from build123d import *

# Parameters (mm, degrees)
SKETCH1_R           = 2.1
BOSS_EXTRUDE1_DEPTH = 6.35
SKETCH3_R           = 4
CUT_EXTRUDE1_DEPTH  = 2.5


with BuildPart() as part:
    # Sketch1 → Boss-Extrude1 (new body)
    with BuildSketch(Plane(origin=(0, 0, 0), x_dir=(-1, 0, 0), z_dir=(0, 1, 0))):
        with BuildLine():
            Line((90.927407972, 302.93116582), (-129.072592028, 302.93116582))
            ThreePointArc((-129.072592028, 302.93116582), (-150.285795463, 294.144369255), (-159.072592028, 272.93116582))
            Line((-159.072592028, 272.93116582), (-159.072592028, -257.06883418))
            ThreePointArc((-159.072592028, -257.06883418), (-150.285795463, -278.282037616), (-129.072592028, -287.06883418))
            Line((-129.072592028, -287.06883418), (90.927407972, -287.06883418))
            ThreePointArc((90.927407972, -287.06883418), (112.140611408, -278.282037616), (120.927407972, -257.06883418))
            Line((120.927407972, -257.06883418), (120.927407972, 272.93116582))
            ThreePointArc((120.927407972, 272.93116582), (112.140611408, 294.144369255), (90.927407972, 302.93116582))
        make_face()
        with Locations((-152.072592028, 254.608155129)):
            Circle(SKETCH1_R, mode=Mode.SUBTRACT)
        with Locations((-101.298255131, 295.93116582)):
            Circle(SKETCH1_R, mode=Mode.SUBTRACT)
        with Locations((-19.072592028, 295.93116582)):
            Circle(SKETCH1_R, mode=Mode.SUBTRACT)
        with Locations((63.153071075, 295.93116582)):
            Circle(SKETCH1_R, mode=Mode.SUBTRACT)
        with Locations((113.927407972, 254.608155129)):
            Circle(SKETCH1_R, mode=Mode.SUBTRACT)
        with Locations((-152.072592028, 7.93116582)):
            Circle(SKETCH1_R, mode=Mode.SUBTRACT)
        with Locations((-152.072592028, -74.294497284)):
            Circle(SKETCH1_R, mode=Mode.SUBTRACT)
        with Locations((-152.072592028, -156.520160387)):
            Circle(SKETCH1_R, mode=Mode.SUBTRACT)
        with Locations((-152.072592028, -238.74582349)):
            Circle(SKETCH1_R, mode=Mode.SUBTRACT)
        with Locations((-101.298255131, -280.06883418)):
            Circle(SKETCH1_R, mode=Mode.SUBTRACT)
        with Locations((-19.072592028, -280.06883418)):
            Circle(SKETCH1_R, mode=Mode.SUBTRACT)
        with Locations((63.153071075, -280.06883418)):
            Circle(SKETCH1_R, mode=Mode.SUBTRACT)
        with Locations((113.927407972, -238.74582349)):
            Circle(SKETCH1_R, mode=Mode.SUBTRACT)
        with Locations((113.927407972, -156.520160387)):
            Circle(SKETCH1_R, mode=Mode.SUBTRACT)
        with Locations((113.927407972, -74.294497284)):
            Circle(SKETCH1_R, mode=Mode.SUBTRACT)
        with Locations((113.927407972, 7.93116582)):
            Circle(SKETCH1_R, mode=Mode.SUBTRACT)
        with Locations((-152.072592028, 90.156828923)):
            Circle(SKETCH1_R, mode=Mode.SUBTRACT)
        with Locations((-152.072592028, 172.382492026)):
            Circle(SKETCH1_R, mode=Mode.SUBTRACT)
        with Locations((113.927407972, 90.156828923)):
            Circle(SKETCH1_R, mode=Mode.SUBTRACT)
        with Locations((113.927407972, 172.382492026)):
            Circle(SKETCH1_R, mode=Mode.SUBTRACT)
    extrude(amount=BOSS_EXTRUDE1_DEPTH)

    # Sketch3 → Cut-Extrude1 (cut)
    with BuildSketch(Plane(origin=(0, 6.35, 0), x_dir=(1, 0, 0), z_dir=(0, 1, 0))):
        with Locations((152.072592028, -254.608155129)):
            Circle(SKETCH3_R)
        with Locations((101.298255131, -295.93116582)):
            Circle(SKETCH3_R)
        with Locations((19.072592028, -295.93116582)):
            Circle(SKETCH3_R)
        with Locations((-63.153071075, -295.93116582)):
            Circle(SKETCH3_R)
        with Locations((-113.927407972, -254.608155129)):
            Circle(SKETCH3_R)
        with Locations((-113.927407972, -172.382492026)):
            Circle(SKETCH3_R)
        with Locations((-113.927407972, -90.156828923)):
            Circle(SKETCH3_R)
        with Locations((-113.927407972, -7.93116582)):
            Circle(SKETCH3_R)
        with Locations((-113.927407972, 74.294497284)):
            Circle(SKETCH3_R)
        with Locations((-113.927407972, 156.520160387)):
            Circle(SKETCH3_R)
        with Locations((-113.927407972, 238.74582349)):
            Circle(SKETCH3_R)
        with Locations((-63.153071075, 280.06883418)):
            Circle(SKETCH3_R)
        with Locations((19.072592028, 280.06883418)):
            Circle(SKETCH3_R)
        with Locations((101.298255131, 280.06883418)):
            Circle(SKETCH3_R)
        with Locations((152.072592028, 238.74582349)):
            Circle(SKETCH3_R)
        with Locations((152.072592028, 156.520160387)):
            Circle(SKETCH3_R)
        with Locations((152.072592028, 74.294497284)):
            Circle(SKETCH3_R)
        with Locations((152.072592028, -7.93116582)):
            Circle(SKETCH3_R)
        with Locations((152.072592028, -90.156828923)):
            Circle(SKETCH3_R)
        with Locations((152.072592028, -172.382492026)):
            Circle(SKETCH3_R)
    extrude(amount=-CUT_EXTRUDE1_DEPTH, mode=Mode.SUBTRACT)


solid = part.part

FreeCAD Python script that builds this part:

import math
import FreeCAD as App
import Part
import Sketcher
Q = App.Units.Quantity

doc = App.newDocument("Part")
body = doc.addObject("PartDesign::Body", "Body")

# Sketch on XZ plane
sketch1 = body.newObject("Sketcher::SketchObject", "Sketch")
sketch1.AttachmentSupport = (doc.getObject("XZ_Plane"), [""])
sketch1.MapMode = "FlatFace"
sketch1.addGeometry([
    Part.LineSegment(App.Vector(-90.927408, 302.931166, 0), App.Vector(129.072592, 302.931166, 0)),  # 0
    Part.ArcOfCircle(Part.Circle(App.Vector(129.072592, 272.931166, 0), App.Vector(0, 0, 1), 30), math.radians(0), math.radians(90)),  # 1
    Part.LineSegment(App.Vector(159.072592, 272.931166, 0), App.Vector(159.072592, -257.068834, 0)),  # 2
    Part.ArcOfCircle(Part.Circle(App.Vector(129.072592, -257.068834, 0), App.Vector(0, 0, 1), 30), math.radians(-90), math.radians(0)),  # 3
    Part.LineSegment(App.Vector(129.072592, -287.068834, 0), App.Vector(-90.927408, -287.068834, 0)),  # 4
    Part.ArcOfCircle(Part.Circle(App.Vector(-90.927408, -257.068834, 0), App.Vector(0, 0, 1), 30), math.radians(180), math.radians(270)),  # 5
    Part.LineSegment(App.Vector(-120.927408, -257.068834, 0), App.Vector(-120.927408, 272.931166, 0)),  # 6
    Part.ArcOfCircle(Part.Circle(App.Vector(-90.927408, 272.931166, 0), App.Vector(0, 0, 1), 30), math.radians(90), math.radians(180)),  # 7
    Part.Circle(App.Vector(152.072592, -238.745823, 0), App.Vector(0, 0, 1), 2.1),  # 8
    Part.Circle(App.Vector(101.298255, -280.068834, 0), App.Vector(0, 0, 1), 2.1),  # 9
    Part.Circle(App.Vector(152.072592, -156.52016, 0), App.Vector(0, 0, 1), 2.1),  # 10
    Part.Circle(App.Vector(152.072592, -74.294497, 0), App.Vector(0, 0, 1), 2.1),  # 11
    Part.Circle(App.Vector(19.072592, -280.068834, 0), App.Vector(0, 0, 1), 2.1),  # 12
    Part.Circle(App.Vector(-63.153071, -280.068834, 0), App.Vector(0, 0, 1), 2.1),  # 13
    Part.Circle(App.Vector(-113.927408, -238.745823, 0), App.Vector(0, 0, 1), 2.1),  # 14
    Part.Circle(App.Vector(-113.927408, -156.52016, 0), App.Vector(0, 0, 1), 2.1),  # 15
    Part.Circle(App.Vector(-113.927408, -74.294497, 0), App.Vector(0, 0, 1), 2.1),  # 16
    Part.Circle(App.Vector(152.072592, 7.931166, 0), App.Vector(0, 0, 1), 2.1),  # 17
    Part.Circle(App.Vector(152.072592, 90.156829, 0), App.Vector(0, 0, 1), 2.1),  # 18
    Part.Circle(App.Vector(152.072592, 172.382492, 0), App.Vector(0, 0, 1), 2.1),  # 19
    Part.Circle(App.Vector(152.072592, 254.608155, 0), App.Vector(0, 0, 1), 2.1),  # 20
    Part.Circle(App.Vector(101.298255, 295.931166, 0), App.Vector(0, 0, 1), 2.1),  # 21
    Part.Circle(App.Vector(-113.927408, 7.931166, 0), App.Vector(0, 0, 1), 2.1),  # 22
    Part.Circle(App.Vector(-113.927408, 90.156829, 0), App.Vector(0, 0, 1), 2.1),  # 23
    Part.Circle(App.Vector(19.072592, 295.931166, 0), App.Vector(0, 0, 1), 2.1),  # 24
    Part.Circle(App.Vector(-113.927408, 172.382492, 0), App.Vector(0, 0, 1), 2.1),  # 25
    Part.Circle(App.Vector(-63.153071, 295.931166, 0), App.Vector(0, 0, 1), 2.1),  # 26
    Part.Circle(App.Vector(-113.927408, 254.608155, 0), App.Vector(0, 0, 1), 2.1),  # 27
], False)
sketch1.addConstraint([
    Sketcher.Constraint("Tangent", 0, 2, 1, 2),
    Sketcher.Constraint("Tangent", 1, 1, 2, 1),
    Sketcher.Constraint("Tangent", 2, 2, 3, 2),
    Sketcher.Constraint("Tangent", 3, 1, 4, 1),
    Sketcher.Constraint("Tangent", 4, 2, 5, 2),
    Sketcher.Constraint("Tangent", 5, 1, 6, 1),
    Sketcher.Constraint("Tangent", 6, 2, 7, 2),
    Sketcher.Constraint("Tangent", 7, 1, 0, 1),
    Sketcher.Constraint("Horizontal", 0),
    Sketcher.Constraint("Vertical", 2),
    Sketcher.Constraint("Horizontal", 4),
    Sketcher.Constraint("Vertical", 6),
    Sketcher.Constraint("Equal", 1, 3),
    Sketcher.Constraint("Equal", 3, 5),
    Sketcher.Constraint("Equal", 5, 7),
    Sketcher.Constraint("Equal", 8, 9),
    Sketcher.Constraint("Equal", 9, 10),
    Sketcher.Constraint("Equal", 10, 11),
    Sketcher.Constraint("Equal", 11, 12),
    Sketcher.Constraint("Equal", 12, 13),
    Sketcher.Constraint("Equal", 13, 14),
    Sketcher.Constraint("Equal", 14, 15),
    Sketcher.Constraint("Equal", 15, 16),
    Sketcher.Constraint("Equal", 16, 17),
    Sketcher.Constraint("Equal", 17, 18),
    Sketcher.Constraint("Equal", 18, 19),
    Sketcher.Constraint("Equal", 19, 20),
    Sketcher.Constraint("Equal", 20, 21),
    Sketcher.Constraint("Equal", 21, 22),
    Sketcher.Constraint("Equal", 22, 23),
    Sketcher.Constraint("Equal", 23, 24),
    Sketcher.Constraint("Equal", 24, 25),
    Sketcher.Constraint("Equal", 25, 26),
    Sketcher.Constraint("Equal", 26, 27),
    Sketcher.Constraint("Horizontal", 9, 3, 12, 3),
    Sketcher.Constraint("Horizontal", 12, 3, 13, 3),
    Sketcher.Constraint("Horizontal", 8, 3, 14, 3),
    Sketcher.Constraint("Horizontal", 10, 3, 15, 3),
    Sketcher.Constraint("Horizontal", 11, 3, 16, 3),
    Sketcher.Constraint("Horizontal", 17, 3, 22, 3),
    Sketcher.Constraint("Horizontal", 18, 3, 23, 3),
    Sketcher.Constraint("Horizontal", 21, 3, 24, 3),
    Sketcher.Constraint("Horizontal", 19, 3, 25, 3),
    Sketcher.Constraint("Horizontal", 24, 3, 26, 3),
    Sketcher.Constraint("Horizontal", 20, 3, 27, 3),
    Sketcher.Constraint("Vertical", 8, 3, 10, 3),
    Sketcher.Constraint("Vertical", 10, 3, 11, 3),
    Sketcher.Constraint("Vertical", 14, 3, 15, 3),
    Sketcher.Constraint("Vertical", 15, 3, 16, 3),
    Sketcher.Constraint("Vertical", 11, 3, 17, 3),
    Sketcher.Constraint("Vertical", 17, 3, 18, 3),
    Sketcher.Constraint("Vertical", 18, 3, 19, 3),
    Sketcher.Constraint("Vertical", 19, 3, 20, 3),
    Sketcher.Constraint("Vertical", 9, 3, 21, 3),
    Sketcher.Constraint("Vertical", 16, 3, 22, 3),
    Sketcher.Constraint("Vertical", 22, 3, 23, 3),
    Sketcher.Constraint("Vertical", 12, 3, 24, 3),
    Sketcher.Constraint("Vertical", 23, 3, 25, 3),
    Sketcher.Constraint("Vertical", 13, 3, 26, 3),
    Sketcher.Constraint("Vertical", 25, 3, 27, 3),
    Sketcher.Constraint("Radius", 1, Q("30 mm")),
    Sketcher.Constraint("Diameter", 8, Q("4.2 mm")),
    Sketcher.Constraint("DistanceX", 0, 1, 0, 2, Q("220 mm")),
    Sketcher.Constraint("DistanceY", 2, 2, 2, 1, Q("530 mm")),
    Sketcher.Constraint("DistanceX", 3, 3, 8, 3, Q("23 mm")),
    Sketcher.Constraint("DistanceY", 9, 3, 3, 3, Q("23 mm")),
    Sketcher.Constraint("DistanceX", 12, 3, 3, 3, Q("110 mm")),
    Sketcher.Constraint("DistanceX", 14, 3, 5, 3, Q("23 mm")),
    Sketcher.Constraint("DistanceY", 17, 3, 1, 3, Q("265 mm")),
    Sketcher.Constraint("DistanceY", 1, 3, 21, 3, Q("23 mm")),
    Sketcher.Constraint("DistanceY", 10, 3, -1, 1, Q("156.52016 mm")),
    Sketcher.Constraint("DistanceX", 13, 3, -1, 1, Q("63.153071 mm")),
    Sketcher.Constraint("DistanceY", -1, 1, 18, 3, Q("90.156829 mm")),
    Sketcher.Constraint("DistanceY", 3, 3, 8, 3, Q("18.323011 mm")),
    Sketcher.Constraint("DistanceY", 11, 3, 19, 3, Q("246.676989 mm")),
    Sketcher.Constraint("DistanceY", 20, 3, 1, 3, Q("18.323011 mm")),
    Sketcher.Constraint("DistanceX", -1, 1, 1, 3, Q("129.072592 mm")),
    Sketcher.Constraint("DistanceY", -1, 1, 1, 3, Q("272.931166 mm")),
    Sketcher.Constraint("DistanceX", -1, 1, 9, 3, Q("101.298255 mm")),
    Sketcher.Constraint("DistanceY", 11, 3, -1, 1, Q("74.294497 mm")),
])
pad1 = body.newObject("PartDesign::Pad", "Pad")
pad1.Profile = sketch1
pad1.Length = 6.35
pad1.Reversed = True

# Sketch on XZ plane
sketch2 = body.newObject("Sketcher::SketchObject", "Sketch001")
sketch2.AttachmentSupport = (doc.getObject("XZ_Plane"), [""])
sketch2.MapMode = "FlatFace"
sketch2.AttachmentOffset = App.Placement(App.Vector(0, 0, -6.35), App.Rotation())
sketch2.addGeometry([
    Part.Circle(App.Vector(152.072592, 254.608155, 0), App.Vector(0, 0, 1), 4),  # 0
    Part.Circle(App.Vector(101.298255, 295.931166, 0), App.Vector(0, 0, 1), 4),  # 1
    Part.Circle(App.Vector(19.072592, 295.931166, 0), App.Vector(0, 0, 1), 4),  # 2
    Part.Circle(App.Vector(-63.153071, 295.931166, 0), App.Vector(0, 0, 1), 4),  # 3
    Part.Circle(App.Vector(-113.927408, 254.608155, 0), App.Vector(0, 0, 1), 4),  # 4
    Part.Circle(App.Vector(-113.927408, 172.382492, 0), App.Vector(0, 0, 1), 4),  # 5
    Part.Circle(App.Vector(-113.927408, 90.156829, 0), App.Vector(0, 0, 1), 4),  # 6
    Part.Circle(App.Vector(-113.927408, 7.931166, 0), App.Vector(0, 0, 1), 4),  # 7
    Part.Circle(App.Vector(-113.927408, -74.294497, 0), App.Vector(0, 0, 1), 4),  # 8
    Part.Circle(App.Vector(-113.927408, -156.52016, 0), App.Vector(0, 0, 1), 4),  # 9
    Part.Circle(App.Vector(-113.927408, -238.745823, 0), App.Vector(0, 0, 1), 4),  # 10
    Part.Circle(App.Vector(-63.153071, -280.068834, 0), App.Vector(0, 0, 1), 4),  # 11
    Part.Circle(App.Vector(19.072592, -280.068834, 0), App.Vector(0, 0, 1), 4),  # 12
    Part.Circle(App.Vector(101.298255, -280.068834, 0), App.Vector(0, 0, 1), 4),  # 13
    Part.Circle(App.Vector(152.072592, -238.745823, 0), App.Vector(0, 0, 1), 4),  # 14
    Part.Circle(App.Vector(152.072592, -156.52016, 0), App.Vector(0, 0, 1), 4),  # 15
    Part.Circle(App.Vector(152.072592, -74.294497, 0), App.Vector(0, 0, 1), 4),  # 16
    Part.Circle(App.Vector(152.072592, 7.931166, 0), App.Vector(0, 0, 1), 4),  # 17
    Part.Circle(App.Vector(152.072592, 90.156829, 0), App.Vector(0, 0, 1), 4),  # 18
    Part.Circle(App.Vector(152.072592, 172.382492, 0), App.Vector(0, 0, 1), 4),  # 19
], False)
sketch2.addConstraint([
    Sketcher.Constraint("Equal", 0, 1),
    Sketcher.Constraint("Equal", 1, 2),
    Sketcher.Constraint("Equal", 2, 3),
    Sketcher.Constraint("Equal", 3, 4),
    Sketcher.Constraint("Equal", 4, 5),
    Sketcher.Constraint("Equal", 5, 6),
    Sketcher.Constraint("Equal", 6, 7),
    Sketcher.Constraint("Equal", 7, 8),
    Sketcher.Constraint("Equal", 8, 9),
    Sketcher.Constraint("Equal", 9, 10),
    Sketcher.Constraint("Equal", 10, 11),
    Sketcher.Constraint("Equal", 11, 12),
    Sketcher.Constraint("Equal", 12, 13),
    Sketcher.Constraint("Equal", 13, 14),
    Sketcher.Constraint("Equal", 14, 15),
    Sketcher.Constraint("Equal", 15, 16),
    Sketcher.Constraint("Equal", 16, 17),
    Sketcher.Constraint("Equal", 17, 18),
    Sketcher.Constraint("Equal", 18, 19),
    Sketcher.Constraint("Horizontal", 1, 3, 2, 3),
    Sketcher.Constraint("Horizontal", 2, 3, 3, 3),
    Sketcher.Constraint("Horizontal", 0, 3, 4, 3),
    Sketcher.Constraint("Horizontal", 11, 3, 12, 3),
    Sketcher.Constraint("Horizontal", 12, 3, 13, 3),
    Sketcher.Constraint("Horizontal", 10, 3, 14, 3),
    Sketcher.Constraint("Horizontal", 9, 3, 15, 3),
    Sketcher.Constraint("Horizontal", 8, 3, 16, 3),
    Sketcher.Constraint("Horizontal", 7, 3, 17, 3),
    Sketcher.Constraint("Horizontal", 6, 3, 18, 3),
    Sketcher.Constraint("Horizontal", 5, 3, 19, 3),
    Sketcher.Constraint("Vertical", 4, 3, 5, 3),
    Sketcher.Constraint("Vertical", 5, 3, 6, 3),
    Sketcher.Constraint("Vertical", 6, 3, 7, 3),
    Sketcher.Constraint("Vertical", 7, 3, 8, 3),
    Sketcher.Constraint("Vertical", 8, 3, 9, 3),
    Sketcher.Constraint("Vertical", 9, 3, 10, 3),
    Sketcher.Constraint("Vertical", 3, 3, 11, 3),
    Sketcher.Constraint("Vertical", 2, 3, 12, 3),
    Sketcher.Constraint("Vertical", 1, 3, 13, 3),
    Sketcher.Constraint("Vertical", 0, 3, 14, 3),
    Sketcher.Constraint("Vertical", 14, 3, 15, 3),
    Sketcher.Constraint("Vertical", 15, 3, 16, 3),
    Sketcher.Constraint("Vertical", 16, 3, 17, 3),
    Sketcher.Constraint("Vertical", 17, 3, 18, 3),
    Sketcher.Constraint("Vertical", 18, 3, 19, 3),
    Sketcher.Constraint("Diameter", 0, Q("8 mm")),
    Sketcher.Constraint("DistanceX", 2, 3, 0, 3, Q("133 mm")),
    Sketcher.Constraint("DistanceX", 4, 3, 2, 3, Q("133 mm")),
    Sketcher.Constraint("DistanceY", 7, 3, 3, 3, Q("288 mm")),
    Sketcher.Constraint("DistanceY", 11, 3, 7, 3, Q("288 mm")),
    Sketcher.Constraint("DistanceX", 3, 3, -1, 1, Q("63.153071 mm")),
    Sketcher.Constraint("DistanceY", -1, 1, 6, 3, Q("90.156829 mm")),
    Sketcher.Constraint("DistanceY", 9, 3, -1, 1, Q("156.52016 mm")),
    Sketcher.Constraint("DistanceY", 0, 3, 1, 3, Q("41.323011 mm")),
    Sketcher.Constraint("DistanceY", 8, 3, 5, 3, Q("246.676989 mm")),
    Sketcher.Constraint("DistanceY", 10, 3, 7, 3, Q("246.676989 mm")),
    Sketcher.Constraint("DistanceX", -1, 1, 0, 3, Q("152.072592 mm")),
    Sketcher.Constraint("DistanceY", -1, 1, 0, 3, Q("254.608155 mm")),
    Sketcher.Constraint("DistanceX", -1, 1, 1, 3, Q("101.298255 mm")),
    Sketcher.Constraint("DistanceY", -1, 1, 5, 3, Q("172.382492 mm")),
])
pocket1 = body.newObject("PartDesign::Pocket", "Pocket")
pocket1.Profile = sketch2
pocket1.Length = 2.5
pocket1.Reversed = True

doc.recompute()
